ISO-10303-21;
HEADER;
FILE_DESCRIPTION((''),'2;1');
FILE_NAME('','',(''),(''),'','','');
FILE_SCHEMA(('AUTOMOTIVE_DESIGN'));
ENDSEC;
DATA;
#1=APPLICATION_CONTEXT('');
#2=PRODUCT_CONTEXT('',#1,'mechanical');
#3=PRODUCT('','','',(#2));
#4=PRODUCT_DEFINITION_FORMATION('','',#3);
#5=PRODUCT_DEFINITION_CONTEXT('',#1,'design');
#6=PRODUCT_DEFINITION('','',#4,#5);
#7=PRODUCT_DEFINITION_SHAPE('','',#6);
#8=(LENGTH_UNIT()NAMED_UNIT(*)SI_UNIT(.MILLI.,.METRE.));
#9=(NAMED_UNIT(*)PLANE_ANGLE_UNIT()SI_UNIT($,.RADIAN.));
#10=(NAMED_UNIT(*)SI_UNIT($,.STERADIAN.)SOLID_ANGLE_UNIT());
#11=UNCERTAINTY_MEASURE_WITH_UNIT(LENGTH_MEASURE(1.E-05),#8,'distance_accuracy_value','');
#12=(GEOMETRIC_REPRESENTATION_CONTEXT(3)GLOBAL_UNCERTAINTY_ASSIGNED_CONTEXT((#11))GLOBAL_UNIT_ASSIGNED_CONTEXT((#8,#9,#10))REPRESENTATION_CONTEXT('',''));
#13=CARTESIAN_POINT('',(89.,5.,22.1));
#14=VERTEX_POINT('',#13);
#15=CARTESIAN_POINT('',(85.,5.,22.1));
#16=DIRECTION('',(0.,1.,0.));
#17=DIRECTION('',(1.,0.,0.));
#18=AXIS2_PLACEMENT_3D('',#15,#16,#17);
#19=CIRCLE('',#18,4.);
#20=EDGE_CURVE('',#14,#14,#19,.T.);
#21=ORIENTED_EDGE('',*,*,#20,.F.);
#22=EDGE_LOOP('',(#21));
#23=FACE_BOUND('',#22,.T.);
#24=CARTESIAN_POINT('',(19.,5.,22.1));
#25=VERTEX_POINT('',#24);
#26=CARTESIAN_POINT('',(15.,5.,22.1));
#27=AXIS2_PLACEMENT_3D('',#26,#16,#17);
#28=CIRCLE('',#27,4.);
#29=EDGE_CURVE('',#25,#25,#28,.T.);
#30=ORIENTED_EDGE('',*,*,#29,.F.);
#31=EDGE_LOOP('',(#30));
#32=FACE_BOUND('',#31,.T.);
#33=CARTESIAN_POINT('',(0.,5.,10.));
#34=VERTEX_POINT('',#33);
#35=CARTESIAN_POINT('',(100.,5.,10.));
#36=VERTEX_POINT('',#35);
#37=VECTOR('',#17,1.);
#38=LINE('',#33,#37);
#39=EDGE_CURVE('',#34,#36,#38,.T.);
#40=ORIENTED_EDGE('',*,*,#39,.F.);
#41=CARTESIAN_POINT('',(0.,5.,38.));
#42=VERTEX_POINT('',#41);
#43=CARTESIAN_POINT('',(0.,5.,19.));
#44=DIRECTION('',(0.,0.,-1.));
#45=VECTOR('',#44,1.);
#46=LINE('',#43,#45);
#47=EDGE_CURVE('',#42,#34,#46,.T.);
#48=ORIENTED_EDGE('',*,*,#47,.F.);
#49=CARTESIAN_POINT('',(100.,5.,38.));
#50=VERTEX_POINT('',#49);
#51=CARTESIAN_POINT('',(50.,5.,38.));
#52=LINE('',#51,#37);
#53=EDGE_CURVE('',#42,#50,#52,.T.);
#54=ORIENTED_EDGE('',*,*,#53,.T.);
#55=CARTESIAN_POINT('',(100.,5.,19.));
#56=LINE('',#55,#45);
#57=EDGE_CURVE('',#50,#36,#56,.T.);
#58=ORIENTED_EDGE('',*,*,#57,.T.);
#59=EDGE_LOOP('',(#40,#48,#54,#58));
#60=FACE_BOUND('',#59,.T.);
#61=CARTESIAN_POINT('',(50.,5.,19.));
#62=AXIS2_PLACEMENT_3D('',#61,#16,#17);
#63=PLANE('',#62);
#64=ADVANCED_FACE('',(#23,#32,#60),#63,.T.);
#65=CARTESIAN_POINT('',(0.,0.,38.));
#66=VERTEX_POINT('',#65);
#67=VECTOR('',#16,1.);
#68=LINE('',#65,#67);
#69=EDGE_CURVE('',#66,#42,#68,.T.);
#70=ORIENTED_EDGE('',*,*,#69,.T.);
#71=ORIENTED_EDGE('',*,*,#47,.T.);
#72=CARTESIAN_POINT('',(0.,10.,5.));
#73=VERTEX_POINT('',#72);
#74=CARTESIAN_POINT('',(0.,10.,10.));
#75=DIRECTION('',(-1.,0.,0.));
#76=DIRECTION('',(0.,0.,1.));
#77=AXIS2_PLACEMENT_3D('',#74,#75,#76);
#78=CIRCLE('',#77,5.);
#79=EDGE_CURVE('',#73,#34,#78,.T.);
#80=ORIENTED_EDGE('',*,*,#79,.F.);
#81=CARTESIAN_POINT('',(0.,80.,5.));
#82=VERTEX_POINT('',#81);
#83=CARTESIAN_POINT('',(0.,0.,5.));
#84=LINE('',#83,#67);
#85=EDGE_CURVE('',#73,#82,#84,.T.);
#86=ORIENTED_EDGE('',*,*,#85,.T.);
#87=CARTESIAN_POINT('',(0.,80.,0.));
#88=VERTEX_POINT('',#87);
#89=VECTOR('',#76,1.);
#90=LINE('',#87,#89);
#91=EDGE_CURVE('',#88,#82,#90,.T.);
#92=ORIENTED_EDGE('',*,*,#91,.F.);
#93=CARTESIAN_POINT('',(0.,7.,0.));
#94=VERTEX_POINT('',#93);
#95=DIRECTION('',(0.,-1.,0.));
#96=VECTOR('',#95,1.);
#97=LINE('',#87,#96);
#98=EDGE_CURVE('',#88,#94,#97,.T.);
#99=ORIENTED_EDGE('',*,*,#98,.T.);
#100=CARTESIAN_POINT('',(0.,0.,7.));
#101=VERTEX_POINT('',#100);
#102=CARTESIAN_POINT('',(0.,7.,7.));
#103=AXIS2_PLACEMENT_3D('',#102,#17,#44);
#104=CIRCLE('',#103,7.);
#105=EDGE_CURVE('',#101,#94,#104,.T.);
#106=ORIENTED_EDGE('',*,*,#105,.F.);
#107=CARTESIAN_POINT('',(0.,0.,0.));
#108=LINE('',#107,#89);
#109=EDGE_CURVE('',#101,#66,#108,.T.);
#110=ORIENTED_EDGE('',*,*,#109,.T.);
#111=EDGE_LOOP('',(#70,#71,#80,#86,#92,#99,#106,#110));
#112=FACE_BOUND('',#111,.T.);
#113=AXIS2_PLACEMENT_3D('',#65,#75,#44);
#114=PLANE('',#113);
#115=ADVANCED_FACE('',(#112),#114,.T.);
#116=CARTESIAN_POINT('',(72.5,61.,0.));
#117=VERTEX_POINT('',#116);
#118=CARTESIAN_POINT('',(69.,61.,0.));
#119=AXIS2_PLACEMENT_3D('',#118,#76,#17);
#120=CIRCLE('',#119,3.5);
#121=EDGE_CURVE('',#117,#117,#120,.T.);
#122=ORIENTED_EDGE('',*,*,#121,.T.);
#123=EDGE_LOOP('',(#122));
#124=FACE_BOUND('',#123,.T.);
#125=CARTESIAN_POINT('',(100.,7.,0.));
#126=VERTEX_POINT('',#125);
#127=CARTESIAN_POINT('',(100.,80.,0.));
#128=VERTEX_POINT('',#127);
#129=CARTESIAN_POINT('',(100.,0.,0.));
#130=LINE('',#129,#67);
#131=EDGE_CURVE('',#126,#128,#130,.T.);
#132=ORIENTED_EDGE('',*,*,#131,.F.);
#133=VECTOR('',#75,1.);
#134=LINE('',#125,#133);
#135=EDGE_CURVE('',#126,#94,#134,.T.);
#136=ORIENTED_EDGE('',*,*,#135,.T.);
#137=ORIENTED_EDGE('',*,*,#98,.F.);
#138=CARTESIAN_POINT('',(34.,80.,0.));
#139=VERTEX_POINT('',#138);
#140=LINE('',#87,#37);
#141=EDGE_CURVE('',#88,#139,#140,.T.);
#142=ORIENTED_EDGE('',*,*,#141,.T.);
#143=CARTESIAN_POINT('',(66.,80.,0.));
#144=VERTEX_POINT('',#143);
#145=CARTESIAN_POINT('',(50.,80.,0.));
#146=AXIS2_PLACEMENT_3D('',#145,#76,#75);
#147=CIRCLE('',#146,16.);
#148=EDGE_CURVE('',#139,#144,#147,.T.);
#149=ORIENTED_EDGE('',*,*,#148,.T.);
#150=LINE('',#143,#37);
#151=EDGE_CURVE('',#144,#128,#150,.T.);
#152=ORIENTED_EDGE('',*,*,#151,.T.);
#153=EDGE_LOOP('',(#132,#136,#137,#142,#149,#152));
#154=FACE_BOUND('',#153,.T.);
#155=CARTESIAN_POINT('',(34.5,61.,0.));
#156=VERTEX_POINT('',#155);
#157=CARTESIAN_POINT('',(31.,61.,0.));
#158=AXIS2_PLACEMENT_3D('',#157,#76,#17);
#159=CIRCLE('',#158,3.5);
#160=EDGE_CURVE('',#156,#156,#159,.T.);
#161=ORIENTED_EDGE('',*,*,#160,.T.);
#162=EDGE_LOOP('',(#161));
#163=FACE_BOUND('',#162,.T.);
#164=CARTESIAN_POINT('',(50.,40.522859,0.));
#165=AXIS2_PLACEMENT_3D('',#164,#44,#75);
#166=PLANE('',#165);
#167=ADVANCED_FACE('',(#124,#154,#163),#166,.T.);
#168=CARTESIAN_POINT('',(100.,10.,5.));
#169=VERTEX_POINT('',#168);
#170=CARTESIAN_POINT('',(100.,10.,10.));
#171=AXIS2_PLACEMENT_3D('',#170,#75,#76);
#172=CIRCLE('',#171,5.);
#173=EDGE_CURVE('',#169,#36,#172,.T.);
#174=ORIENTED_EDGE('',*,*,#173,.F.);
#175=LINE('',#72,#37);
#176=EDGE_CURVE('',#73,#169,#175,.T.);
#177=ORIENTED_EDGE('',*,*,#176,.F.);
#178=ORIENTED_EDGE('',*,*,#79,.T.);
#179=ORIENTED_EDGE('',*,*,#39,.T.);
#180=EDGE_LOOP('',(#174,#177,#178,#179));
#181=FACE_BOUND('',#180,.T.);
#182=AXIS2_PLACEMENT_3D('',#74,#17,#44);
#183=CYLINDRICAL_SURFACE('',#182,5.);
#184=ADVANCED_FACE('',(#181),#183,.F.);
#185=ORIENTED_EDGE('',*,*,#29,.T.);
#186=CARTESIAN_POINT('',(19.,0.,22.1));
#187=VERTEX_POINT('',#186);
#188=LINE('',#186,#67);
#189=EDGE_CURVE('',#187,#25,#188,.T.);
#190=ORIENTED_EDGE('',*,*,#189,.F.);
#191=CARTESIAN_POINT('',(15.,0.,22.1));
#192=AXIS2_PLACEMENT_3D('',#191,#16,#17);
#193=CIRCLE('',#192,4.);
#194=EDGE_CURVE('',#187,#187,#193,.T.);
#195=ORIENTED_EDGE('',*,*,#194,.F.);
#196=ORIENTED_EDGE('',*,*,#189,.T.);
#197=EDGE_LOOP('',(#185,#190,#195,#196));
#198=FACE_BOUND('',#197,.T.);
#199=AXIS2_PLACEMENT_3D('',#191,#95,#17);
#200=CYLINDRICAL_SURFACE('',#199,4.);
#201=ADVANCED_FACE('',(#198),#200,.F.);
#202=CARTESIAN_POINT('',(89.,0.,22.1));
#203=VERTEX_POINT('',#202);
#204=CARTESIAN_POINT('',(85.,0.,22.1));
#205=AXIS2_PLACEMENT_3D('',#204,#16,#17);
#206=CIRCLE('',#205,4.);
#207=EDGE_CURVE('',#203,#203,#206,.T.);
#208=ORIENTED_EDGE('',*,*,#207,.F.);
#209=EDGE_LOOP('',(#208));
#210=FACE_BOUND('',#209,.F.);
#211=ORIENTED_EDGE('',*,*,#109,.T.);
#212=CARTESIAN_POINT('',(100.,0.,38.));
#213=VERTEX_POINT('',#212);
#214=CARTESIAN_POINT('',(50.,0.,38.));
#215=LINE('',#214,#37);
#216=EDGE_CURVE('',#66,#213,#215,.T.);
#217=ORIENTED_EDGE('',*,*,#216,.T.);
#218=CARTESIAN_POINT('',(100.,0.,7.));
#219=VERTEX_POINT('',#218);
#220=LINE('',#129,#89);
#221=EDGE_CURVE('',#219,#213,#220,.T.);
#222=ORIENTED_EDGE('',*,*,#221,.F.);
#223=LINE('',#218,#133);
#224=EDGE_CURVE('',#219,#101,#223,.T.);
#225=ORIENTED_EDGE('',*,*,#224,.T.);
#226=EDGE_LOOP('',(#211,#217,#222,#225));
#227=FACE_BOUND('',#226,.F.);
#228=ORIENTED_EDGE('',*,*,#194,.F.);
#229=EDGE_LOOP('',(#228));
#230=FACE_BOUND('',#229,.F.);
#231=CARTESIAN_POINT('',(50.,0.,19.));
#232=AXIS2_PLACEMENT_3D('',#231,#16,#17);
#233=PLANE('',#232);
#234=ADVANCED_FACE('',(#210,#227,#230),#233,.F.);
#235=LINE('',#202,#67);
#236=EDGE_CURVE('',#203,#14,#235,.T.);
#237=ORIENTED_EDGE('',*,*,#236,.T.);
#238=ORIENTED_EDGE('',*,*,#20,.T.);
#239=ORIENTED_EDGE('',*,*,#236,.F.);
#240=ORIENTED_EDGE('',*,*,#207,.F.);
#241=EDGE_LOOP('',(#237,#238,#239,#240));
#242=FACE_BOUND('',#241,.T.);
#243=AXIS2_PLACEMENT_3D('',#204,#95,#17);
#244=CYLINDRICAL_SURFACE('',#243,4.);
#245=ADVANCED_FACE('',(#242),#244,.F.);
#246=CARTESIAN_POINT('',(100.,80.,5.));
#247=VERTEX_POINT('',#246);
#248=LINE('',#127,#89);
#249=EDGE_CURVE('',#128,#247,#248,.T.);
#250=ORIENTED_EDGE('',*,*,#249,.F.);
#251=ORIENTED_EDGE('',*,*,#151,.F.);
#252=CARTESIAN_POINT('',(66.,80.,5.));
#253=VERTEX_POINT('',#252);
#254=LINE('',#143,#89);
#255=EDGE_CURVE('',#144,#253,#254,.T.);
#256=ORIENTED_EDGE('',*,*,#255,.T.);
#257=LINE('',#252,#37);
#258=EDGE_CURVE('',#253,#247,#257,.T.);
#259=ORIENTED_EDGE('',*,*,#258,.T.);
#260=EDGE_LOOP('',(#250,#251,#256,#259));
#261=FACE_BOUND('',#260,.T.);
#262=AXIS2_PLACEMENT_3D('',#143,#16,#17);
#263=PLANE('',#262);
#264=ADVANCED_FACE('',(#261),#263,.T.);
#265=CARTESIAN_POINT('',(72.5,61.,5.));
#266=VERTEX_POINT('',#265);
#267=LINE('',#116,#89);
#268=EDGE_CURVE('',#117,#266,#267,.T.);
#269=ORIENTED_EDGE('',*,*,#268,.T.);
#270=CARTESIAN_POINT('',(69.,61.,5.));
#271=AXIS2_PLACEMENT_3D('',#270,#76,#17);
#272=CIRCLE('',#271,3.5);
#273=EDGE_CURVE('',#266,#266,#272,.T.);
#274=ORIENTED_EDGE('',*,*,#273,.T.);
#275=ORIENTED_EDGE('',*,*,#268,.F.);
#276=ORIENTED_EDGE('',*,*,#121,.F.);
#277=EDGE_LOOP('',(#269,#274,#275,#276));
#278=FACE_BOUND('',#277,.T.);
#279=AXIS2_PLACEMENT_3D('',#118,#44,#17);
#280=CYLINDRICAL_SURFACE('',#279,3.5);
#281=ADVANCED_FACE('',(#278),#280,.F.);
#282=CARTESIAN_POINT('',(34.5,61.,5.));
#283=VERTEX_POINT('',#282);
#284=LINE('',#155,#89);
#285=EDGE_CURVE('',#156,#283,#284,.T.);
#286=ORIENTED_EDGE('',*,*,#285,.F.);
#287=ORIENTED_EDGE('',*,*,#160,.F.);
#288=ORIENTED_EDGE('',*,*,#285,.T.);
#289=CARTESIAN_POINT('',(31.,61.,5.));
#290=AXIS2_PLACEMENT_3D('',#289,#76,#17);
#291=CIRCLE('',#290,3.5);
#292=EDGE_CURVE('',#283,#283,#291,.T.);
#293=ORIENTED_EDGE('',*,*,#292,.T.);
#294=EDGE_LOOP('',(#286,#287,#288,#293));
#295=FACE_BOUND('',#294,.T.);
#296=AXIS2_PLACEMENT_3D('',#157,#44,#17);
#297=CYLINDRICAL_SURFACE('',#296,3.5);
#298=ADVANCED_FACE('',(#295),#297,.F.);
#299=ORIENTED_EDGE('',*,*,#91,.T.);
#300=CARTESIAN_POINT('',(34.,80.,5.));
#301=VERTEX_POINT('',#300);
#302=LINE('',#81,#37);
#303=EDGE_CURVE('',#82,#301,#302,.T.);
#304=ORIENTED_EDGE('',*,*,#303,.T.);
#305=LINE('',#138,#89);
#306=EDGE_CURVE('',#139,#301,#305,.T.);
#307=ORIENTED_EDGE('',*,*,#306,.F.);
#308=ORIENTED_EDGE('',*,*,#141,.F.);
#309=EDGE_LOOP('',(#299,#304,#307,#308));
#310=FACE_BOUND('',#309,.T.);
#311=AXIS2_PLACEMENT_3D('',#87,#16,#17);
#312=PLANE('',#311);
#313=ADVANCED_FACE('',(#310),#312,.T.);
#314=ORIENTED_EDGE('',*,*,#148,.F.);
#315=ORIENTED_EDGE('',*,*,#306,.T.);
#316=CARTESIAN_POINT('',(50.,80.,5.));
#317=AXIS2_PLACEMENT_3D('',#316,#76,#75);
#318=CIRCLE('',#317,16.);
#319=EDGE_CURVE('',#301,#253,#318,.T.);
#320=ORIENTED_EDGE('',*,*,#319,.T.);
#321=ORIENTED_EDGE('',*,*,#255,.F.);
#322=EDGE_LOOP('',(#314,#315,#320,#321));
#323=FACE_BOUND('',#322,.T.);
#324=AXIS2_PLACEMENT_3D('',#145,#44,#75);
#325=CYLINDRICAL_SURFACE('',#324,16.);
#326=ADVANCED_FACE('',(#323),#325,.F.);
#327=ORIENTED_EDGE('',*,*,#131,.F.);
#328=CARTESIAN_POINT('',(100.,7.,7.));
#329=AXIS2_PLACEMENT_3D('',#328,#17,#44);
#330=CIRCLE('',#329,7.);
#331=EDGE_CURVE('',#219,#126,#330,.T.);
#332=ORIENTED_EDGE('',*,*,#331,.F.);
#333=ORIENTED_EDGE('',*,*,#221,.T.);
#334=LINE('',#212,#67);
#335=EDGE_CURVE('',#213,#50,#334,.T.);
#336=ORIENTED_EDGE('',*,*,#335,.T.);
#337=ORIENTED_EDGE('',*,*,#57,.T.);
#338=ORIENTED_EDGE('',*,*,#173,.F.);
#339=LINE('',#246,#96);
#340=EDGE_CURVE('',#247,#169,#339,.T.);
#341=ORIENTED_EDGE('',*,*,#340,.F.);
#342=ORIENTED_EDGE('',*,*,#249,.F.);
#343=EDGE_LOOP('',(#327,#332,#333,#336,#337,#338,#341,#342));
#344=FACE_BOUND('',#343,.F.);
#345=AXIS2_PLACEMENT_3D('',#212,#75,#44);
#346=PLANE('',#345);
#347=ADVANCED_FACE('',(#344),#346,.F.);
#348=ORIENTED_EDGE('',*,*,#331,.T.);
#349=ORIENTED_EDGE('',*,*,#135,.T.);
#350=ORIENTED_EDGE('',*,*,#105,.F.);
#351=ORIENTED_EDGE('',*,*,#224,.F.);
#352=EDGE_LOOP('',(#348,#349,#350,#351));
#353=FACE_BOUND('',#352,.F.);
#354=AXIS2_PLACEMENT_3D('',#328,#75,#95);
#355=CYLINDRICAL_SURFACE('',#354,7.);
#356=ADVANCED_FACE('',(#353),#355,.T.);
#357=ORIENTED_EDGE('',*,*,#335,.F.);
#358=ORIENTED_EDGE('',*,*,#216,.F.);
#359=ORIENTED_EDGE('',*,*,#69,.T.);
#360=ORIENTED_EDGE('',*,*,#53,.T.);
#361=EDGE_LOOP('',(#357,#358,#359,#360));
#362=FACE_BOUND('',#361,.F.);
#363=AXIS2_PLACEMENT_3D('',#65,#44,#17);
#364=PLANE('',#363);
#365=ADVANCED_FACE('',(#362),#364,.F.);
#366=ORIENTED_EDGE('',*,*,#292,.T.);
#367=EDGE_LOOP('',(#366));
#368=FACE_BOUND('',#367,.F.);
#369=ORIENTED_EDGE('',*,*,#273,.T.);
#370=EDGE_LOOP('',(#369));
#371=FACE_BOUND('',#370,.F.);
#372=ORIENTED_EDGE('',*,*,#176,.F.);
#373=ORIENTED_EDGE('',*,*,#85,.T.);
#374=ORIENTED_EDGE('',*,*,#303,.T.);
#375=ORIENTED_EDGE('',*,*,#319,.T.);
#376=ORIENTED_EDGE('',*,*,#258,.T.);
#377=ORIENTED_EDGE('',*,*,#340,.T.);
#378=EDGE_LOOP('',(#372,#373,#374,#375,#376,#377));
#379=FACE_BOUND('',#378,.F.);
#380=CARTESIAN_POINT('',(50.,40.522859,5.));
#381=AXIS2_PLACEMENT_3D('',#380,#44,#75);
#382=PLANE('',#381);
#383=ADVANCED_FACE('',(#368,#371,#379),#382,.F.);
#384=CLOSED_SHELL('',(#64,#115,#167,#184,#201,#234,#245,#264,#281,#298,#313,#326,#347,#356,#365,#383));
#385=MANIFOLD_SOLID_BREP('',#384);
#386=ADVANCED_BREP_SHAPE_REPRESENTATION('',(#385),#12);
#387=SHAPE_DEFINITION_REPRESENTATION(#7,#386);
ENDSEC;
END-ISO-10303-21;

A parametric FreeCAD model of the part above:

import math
import FreeCAD as App
import Part
import Sketcher

V = App.Vector


def edges_at(feature, points):
    """Names of the edges that pass closest to the given points."""
    edges = feature.Shape.Edges
    near = lambda p: min(range(len(edges)), key=lambda i: edges[i].distToShape(Part.Vertex(*p))[0])
    return sorted({f"Edge{near(p) + 1}" for p in points})

doc = App.newDocument("Part")
params = doc.addObject("Spreadsheet::Sheet", "Params")
for row, (alias, value) in enumerate([
    ("sketch1_diameter", "7 mm"),
    ("sketch1_radius", "16 mm"),
    ("sketch1_width", "34 mm"),
    ("sketch1_height", "80 mm"),
    ("pad1_length", "5 mm"),
    ("sketch2_diameter", "8 mm"),
    ("sketch2_width", "100 mm"),
    ("sketch2_height", "38 mm"),
    ("pad2_length", "5 mm"),
    ("fillet_radius", "5 mm"),
    ("fillet2_radius", "7 mm"),
], start=1):
    params.set(f"A{row}", alias)
    params.set(f"B{row}", "=" + value)
    params.setAlias(f"B{row}", alias)

body = doc.addObject("PartDesign::Body", "Body")

# Sketch on XY plane
sketch1 = doc.addObject("Sketcher::SketchObject", "Sketch")
body.addObject(sketch1)
sketch1.AttachmentSupport = (doc.XY_Plane, [""])
sketch1.MapMode = "FlatFace"
sketch1.addGeometry(Part.LineSegment(V(100, 80, 0), V(66, 80, 0)), False)
sketch1.addGeometry(Part.ArcOfCircle(Part.Circle(V(50, 80, 0), V(0, 0, 1), 16), math.radians(180), math.radians(360)), False)
sketch1.addGeometry(Part.LineSegment(V(34, 80, 0), V(0, 80, 0)), False)
sketch1.addGeometry(Part.LineSegment(V(0, 80, 0), V(0, 0, 0)), False)
sketch1.addGeometry(Part.LineSegment(V(0, 0, 0), V(100, 0, 0)), False)
sketch1.addGeometry(Part.LineSegment(V(100, 0, 0), V(100, 80, 0)), False)
sketch1.addGeometry(Part.Circle(V(69, 61, 0), V(0, 0, 1), 3.5), False)
sketch1.addGeometry(Part.Circle(V(31, 61, 0), V(0, 0, 1), 3.5), False)
sketch1.addConstraint(Sketcher.Constraint("Coincident", 0, 2, 1, 2))
sketch1.addConstraint(Sketcher.Constraint("Coincident", 1, 1, 2, 1))
sketch1.addConstraint(Sketcher.Constraint("Coincident", 2, 2, 3, 1))
sketch1.addConstraint(Sketcher.Constraint("Coincident", 3, 2, 4, 1))
sketch1.addConstraint(Sketcher.Constraint("Coincident", 4, 2, 5, 1))
sketch1.addConstraint(Sketcher.Constraint("Coincident", 5, 2, 0, 1))
sketch1.addConstraint(Sketcher.Constraint("Horizontal", 0))
sketch1.addConstraint(Sketcher.Constraint("Horizontal", 2))
sketch1.addConstraint(Sketcher.Constraint("Vertical", 3))
sketch1.addConstraint(Sketcher.Constraint("Horizontal", 4))
sketch1.addConstraint(Sketcher.Constraint("Vertical", 5))
sketch1.addConstraint(Sketcher.Constraint("Coincident", 3, 2, -1, 1))
sketch1.addConstraint(Sketcher.Constraint("Equal", 6, 7))
sketch1.addConstraint(Sketcher.Constraint("Horizontal", 6, 3, 7, 3))
sketch1.addConstraint(Sketcher.Constraint("Horizontal", 1, 3, 0, 2))
sketch1.addConstraint(Sketcher.Constraint("Horizontal", 0, 2, 1, 1))
sketch1.addConstraint(Sketcher.Constraint("Equal", 0, 2))
sketch1.addConstraint(Sketcher.Constraint("Diameter", 6, 7.0))
sketch1.addConstraint(Sketcher.Constraint("Radius", 1, 16.0))
sketch1.addConstraint(Sketcher.Constraint("DistanceX", 0, 2, 0, 1, 34.0))
sketch1.addConstraint(Sketcher.Constraint("DistanceY", 3, 2, 3, 1, 80.0))
sketch1.addConstraint(Sketcher.Constraint("DistanceX", -1, 1, 6, 3, 69.0))
sketch1.addConstraint(Sketcher.Constraint("DistanceY", -1, 1, 6, 3, 61.0))
sketch1.addConstraint(Sketcher.Constraint("DistanceX", -1, 1, 7, 3, 31.0))
sketch1.setExpression("Constraints[17]", "Params.sketch1_diameter")
sketch1.setExpression("Constraints[18]", "Params.sketch1_radius")
sketch1.setExpression("Constraints[19]", "Params.sketch1_width")
sketch1.setExpression("Constraints[20]", "Params.sketch1_height")
pad1 = doc.addObject("PartDesign::Pad", "Pad")
body.addObject(pad1)
pad1.Profile = sketch1
pad1.setExpression("Length", "Params.pad1_length")

# Sketch on XZ plane
sketch2 = doc.addObject("Sketcher::SketchObject", "Sketch001")
body.addObject(sketch2)
sketch2.AttachmentSupport = (doc.XZ_Plane, [""])
sketch2.MapMode = "FlatFace"
sketch2.addGeometry(Part.LineSegment(V(0, 0, 0), V(0, 38, 0)), False)
sketch2.addGeometry(Part.LineSegment(V(0, 38, 0), V(100, 38, 0)), False)
sketch2.addGeometry(Part.LineSegment(V(100, 38, 0), V(100, 0, 0)), False)
sketch2.addGeometry(Part.LineSegment(V(100, 0, 0), V(0, 0, 0)), False)
sketch2.addGeometry(Part.Circle(V(15, 22.1, 0), V(0, 0, 1), 4), False)
sketch2.addGeometry(Part.Circle(V(85, 22.1, 0), V(0, 0, 1), 4), False)
sketch2.addConstraint(Sketcher.Constraint("Coincident", 0, 2, 1, 1))
sketch2.addConstraint(Sketcher.Constraint("Coincident", 1, 2, 2, 1))
sketch2.addConstraint(Sketcher.Constraint("Coincident", 2, 2, 3, 1))
sketch2.addConstraint(Sketcher.Constraint("Coincident", 3, 2, 0, 1))
sketch2.addConstraint(Sketcher.Constraint("Vertical", 0))
sketch2.addConstraint(Sketcher.Constraint("Horizontal", 1))
sketch2.addConstraint(Sketcher.Constraint("Vertical", 2))
sketch2.addConstraint(Sketcher.Constraint("Horizontal", 3))
sketch2.addConstraint(Sketcher.Constraint("Coincident", 3, 2, -1, 1))
sketch2.addConstraint(Sketcher.Constraint("Equal", 4, 5))
sketch2.addConstraint(Sketcher.Constraint("Horizontal", 4, 3, 5, 3))
sketch2.addConstraint(Sketcher.Constraint("Diameter", 4, 8.0))
sketch2.addConstraint(Sketcher.Constraint("DistanceX", 1, 1, 1, 2, 100.0))
sketch2.addConstraint(Sketcher.Constraint("DistanceY", 0, 1, 0, 2, 38.0))
sketch2.addConstraint(Sketcher.Constraint("DistanceX", -1, 1, 4, 3, 15.0))
sketch2.addConstraint(Sketcher.Constraint("DistanceX", -1, 1, 5, 3, 85.0))
sketch2.addConstraint(Sketcher.Constraint("DistanceY", -1, 1, 4, 3, 22.1))
sketch2.setExpression("Constraints[11]", "Params.sketch2_diameter")
sketch2.setExpression("Constraints[12]", "Params.sketch2_width")
sketch2.setExpression("Constraints[13]", "Params.sketch2_height")
pad2 = doc.addObject("PartDesign::Pad", "Pad001")
body.addObject(pad2)
pad2.Profile = sketch2
pad2.setExpression("Length", "Params.pad2_length")
pad2.Reversed = True
doc.recompute()

fillet = doc.addObject("PartDesign::Fillet", "Fillet")
body.addObject(fillet)
fillet.Base = (pad2, edges_at(pad2, [(50, 5, 5)]))
fillet.setExpression("Radius", "Params.fillet_radius")
doc.recompute()

fillet2 = doc.addObject("PartDesign::Fillet", "Fillet001")
body.addObject(fillet2)
fillet2.Base = (fillet, edges_at(fillet, [(50, 0, 0)]))
fillet2.setExpression("Radius", "Params.fillet2_radius")

doc.recompute()
